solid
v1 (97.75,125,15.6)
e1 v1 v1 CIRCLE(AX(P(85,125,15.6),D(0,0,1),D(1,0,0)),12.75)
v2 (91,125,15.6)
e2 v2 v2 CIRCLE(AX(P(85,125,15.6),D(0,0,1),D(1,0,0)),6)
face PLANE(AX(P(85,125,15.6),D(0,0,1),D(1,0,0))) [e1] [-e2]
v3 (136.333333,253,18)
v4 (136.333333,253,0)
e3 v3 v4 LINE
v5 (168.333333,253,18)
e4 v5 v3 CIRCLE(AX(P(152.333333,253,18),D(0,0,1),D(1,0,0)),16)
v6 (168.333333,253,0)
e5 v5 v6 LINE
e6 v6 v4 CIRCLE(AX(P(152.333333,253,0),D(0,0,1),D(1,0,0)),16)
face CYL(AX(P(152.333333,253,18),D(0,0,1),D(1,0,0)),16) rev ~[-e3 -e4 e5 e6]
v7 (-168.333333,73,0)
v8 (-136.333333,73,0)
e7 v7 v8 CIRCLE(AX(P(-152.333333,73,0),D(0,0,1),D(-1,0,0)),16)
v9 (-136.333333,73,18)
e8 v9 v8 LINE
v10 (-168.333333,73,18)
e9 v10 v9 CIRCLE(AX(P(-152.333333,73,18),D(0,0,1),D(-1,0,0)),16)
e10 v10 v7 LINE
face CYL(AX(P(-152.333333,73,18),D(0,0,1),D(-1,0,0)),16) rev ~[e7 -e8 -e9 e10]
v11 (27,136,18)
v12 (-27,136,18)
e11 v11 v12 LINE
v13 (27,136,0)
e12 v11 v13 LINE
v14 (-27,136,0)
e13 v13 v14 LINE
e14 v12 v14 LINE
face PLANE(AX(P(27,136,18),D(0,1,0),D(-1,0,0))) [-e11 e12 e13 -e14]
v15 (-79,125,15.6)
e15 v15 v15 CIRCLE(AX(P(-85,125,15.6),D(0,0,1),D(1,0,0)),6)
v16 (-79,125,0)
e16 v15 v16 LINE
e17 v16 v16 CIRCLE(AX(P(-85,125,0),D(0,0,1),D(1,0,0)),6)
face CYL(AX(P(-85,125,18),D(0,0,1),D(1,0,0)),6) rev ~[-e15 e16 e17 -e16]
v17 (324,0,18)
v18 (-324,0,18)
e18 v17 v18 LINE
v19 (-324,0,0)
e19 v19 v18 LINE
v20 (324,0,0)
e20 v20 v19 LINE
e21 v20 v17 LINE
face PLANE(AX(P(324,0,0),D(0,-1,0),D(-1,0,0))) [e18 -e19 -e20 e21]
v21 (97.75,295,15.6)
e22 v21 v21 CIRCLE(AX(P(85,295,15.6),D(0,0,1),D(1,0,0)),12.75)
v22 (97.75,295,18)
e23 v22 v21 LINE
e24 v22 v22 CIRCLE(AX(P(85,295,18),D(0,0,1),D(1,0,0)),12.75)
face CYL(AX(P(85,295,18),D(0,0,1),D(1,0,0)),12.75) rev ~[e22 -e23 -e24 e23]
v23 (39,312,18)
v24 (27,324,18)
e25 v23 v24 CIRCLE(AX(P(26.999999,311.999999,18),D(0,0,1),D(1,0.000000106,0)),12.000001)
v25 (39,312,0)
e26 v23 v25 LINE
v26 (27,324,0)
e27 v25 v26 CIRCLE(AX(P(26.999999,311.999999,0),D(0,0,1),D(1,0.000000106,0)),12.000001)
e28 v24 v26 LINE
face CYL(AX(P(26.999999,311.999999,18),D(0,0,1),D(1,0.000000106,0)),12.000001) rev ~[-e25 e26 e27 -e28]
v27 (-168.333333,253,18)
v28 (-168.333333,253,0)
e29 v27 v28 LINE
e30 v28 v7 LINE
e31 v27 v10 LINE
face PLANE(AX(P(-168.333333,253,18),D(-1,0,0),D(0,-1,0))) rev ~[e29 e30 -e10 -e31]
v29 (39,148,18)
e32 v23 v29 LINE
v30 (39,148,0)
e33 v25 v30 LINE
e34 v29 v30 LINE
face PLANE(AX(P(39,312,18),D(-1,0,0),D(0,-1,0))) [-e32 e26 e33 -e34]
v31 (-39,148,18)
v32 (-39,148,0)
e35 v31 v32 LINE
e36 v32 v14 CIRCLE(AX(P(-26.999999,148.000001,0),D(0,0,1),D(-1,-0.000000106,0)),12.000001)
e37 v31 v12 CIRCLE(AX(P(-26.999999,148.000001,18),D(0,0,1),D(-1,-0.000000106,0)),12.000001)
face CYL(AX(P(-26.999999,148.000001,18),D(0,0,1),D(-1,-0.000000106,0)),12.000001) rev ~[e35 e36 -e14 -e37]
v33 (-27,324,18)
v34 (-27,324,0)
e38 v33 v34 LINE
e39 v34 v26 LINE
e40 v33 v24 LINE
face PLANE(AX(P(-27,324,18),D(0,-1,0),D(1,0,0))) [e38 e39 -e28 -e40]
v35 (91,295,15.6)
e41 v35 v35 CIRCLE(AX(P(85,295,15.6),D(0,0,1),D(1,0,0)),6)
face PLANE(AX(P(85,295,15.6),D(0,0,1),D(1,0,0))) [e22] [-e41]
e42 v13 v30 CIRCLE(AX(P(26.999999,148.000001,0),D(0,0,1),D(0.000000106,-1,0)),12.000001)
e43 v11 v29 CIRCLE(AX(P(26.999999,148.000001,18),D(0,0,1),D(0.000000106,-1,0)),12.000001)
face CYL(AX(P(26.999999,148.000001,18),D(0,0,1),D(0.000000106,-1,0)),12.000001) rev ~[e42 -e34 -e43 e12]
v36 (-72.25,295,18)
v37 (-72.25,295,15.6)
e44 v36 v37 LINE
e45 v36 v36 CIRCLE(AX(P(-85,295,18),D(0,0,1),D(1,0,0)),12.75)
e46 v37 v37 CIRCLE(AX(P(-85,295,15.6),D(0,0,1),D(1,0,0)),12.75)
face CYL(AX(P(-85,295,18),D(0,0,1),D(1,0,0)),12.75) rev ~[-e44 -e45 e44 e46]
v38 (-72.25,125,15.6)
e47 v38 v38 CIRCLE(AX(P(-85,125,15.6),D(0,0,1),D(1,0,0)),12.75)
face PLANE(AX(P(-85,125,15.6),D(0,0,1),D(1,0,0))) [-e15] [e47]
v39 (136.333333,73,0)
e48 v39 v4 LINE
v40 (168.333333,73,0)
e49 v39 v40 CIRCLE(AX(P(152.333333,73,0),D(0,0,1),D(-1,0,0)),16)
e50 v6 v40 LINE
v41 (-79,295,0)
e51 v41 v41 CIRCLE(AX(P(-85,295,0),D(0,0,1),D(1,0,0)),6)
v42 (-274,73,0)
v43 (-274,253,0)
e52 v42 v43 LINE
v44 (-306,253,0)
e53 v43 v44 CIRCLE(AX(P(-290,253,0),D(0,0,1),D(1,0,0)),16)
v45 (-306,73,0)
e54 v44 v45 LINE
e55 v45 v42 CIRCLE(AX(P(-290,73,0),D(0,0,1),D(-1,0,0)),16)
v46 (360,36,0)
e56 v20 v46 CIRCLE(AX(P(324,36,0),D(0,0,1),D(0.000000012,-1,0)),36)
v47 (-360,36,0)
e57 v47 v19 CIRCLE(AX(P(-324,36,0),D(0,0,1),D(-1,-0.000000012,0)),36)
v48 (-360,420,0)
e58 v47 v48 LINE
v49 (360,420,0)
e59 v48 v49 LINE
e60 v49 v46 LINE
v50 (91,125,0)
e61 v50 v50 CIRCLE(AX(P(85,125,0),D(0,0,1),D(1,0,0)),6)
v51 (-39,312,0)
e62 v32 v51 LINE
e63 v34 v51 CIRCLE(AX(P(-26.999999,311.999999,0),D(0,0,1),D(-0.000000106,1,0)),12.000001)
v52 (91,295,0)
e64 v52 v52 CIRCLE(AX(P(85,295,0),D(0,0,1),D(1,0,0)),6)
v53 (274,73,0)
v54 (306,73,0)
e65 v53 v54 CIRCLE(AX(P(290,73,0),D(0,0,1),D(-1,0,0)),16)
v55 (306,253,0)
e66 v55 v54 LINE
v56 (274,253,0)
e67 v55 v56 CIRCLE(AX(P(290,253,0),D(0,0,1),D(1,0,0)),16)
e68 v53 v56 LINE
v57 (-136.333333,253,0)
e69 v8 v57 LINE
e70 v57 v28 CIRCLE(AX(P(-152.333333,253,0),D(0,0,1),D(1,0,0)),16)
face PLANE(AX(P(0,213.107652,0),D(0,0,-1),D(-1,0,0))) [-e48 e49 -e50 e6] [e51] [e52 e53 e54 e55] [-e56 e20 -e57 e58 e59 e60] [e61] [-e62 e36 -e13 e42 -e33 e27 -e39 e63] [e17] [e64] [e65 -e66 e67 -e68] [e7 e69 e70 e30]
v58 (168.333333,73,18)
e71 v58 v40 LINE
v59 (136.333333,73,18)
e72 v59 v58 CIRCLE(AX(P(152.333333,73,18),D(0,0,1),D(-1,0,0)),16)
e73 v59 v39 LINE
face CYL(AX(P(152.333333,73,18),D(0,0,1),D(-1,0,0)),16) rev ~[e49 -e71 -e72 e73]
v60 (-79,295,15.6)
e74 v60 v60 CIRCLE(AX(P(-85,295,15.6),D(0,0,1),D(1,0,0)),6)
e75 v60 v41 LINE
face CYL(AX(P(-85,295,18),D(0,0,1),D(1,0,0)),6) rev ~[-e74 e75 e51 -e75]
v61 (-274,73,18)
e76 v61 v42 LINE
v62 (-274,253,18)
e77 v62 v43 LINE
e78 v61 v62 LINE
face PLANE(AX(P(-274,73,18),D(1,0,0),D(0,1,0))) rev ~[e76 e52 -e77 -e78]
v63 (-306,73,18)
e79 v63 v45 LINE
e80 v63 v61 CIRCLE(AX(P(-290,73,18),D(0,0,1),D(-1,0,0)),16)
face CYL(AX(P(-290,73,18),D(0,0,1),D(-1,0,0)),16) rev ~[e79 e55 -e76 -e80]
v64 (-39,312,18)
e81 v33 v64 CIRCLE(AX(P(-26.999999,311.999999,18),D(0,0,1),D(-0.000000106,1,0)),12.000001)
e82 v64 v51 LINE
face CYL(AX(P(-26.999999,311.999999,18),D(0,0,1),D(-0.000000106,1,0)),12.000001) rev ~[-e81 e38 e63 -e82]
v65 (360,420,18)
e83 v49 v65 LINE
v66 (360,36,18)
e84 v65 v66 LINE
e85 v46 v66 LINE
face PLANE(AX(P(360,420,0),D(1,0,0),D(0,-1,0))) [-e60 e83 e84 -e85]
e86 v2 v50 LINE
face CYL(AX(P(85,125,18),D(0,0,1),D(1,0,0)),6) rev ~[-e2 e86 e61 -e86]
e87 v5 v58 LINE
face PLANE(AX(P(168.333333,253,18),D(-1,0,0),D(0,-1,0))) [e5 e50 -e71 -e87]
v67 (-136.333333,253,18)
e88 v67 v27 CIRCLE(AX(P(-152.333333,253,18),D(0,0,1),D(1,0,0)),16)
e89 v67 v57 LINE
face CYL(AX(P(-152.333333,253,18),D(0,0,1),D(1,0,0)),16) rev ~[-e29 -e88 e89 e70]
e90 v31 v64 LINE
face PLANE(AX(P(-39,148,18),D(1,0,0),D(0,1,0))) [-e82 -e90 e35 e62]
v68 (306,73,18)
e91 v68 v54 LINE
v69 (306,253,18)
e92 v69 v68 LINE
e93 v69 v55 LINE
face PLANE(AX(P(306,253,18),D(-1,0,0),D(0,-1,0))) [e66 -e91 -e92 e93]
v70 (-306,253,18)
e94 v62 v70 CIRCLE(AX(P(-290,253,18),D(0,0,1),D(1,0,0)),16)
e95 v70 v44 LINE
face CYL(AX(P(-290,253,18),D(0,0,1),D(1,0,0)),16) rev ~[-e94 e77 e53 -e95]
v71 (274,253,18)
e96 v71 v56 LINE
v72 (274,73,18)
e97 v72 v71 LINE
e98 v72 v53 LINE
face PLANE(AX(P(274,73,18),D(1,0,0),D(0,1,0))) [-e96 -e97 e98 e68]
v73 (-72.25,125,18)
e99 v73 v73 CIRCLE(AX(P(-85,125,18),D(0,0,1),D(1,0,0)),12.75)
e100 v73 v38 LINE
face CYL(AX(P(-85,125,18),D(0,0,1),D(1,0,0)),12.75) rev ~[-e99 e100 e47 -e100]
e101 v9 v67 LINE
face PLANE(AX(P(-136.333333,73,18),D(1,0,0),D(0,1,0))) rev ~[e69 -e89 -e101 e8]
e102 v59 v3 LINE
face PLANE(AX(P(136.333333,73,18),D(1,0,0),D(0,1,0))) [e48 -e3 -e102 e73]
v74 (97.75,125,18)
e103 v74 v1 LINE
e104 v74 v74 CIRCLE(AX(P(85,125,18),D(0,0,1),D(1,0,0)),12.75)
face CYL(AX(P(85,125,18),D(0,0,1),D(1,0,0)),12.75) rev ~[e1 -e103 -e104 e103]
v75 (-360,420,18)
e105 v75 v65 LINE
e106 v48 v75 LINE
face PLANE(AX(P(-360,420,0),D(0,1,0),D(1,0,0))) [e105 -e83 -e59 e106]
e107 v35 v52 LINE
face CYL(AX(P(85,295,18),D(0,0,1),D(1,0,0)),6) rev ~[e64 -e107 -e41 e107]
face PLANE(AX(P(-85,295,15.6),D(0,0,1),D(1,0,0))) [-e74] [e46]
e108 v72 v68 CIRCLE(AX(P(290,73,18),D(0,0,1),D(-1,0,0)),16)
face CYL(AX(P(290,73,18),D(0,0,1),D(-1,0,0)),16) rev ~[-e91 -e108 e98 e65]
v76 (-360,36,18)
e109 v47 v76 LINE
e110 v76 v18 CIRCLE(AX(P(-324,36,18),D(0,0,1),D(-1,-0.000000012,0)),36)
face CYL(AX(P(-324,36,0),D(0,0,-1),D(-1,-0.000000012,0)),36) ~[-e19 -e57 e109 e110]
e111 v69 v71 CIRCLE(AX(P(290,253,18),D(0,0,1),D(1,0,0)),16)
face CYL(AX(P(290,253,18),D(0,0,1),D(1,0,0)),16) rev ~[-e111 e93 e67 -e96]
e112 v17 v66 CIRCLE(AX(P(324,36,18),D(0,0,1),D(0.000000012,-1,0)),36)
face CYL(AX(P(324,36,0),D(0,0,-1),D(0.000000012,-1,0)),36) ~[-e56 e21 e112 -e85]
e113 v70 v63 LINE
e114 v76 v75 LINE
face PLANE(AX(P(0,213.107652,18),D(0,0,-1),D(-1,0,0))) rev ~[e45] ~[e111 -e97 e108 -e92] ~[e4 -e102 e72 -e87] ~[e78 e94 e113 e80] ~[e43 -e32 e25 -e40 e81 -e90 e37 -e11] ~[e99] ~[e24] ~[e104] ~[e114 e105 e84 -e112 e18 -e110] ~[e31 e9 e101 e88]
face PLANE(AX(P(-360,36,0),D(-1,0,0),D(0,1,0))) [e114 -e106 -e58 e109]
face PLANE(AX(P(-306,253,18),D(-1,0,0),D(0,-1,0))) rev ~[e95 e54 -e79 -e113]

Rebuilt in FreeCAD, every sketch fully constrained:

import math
import FreeCAD as App
import Part
import Sketcher

doc = App.newDocument("Part")
body = doc.addObject("PartDesign::Body", "Body")

sketch1 = body.newObject("Sketcher::SketchObject", "Sketch")
sketch1.AttachmentSupport = (doc.getObject("XY_Plane"), [""])
sketch1.MapMode = "FlatFace"
sketch1.addGeometry([
    Part.LineSegment(App.Vector(360, 420, 0), App.Vector(-360, 420, 0)),
    Part.LineSegment(App.Vector(-360, 420, 0), App.Vector(-360, 36, 0)),
    Part.ArcOfCircle(Part.Circle(App.Vector(-324, 36, 0), App.Vector(0, 0, 1), 36), math.radians(-180), math.radians(-90)),
    Part.LineSegment(App.Vector(-324, 0, 0), App.Vector(324, 0, 0)),
    Part.ArcOfCircle(Part.Circle(App.Vector(324, 36, 0), App.Vector(0, 0, 1), 36), math.radians(-90), math.radians(0)),
    Part.LineSegment(App.Vector(360, 36, 0), App.Vector(360, 420, 0)),
], False)
sketch1.addConstraint([
    Sketcher.Constraint("Coincident", 0, 2, 1, 1),
    Sketcher.Constraint("Tangent", 1, 2, 2, 1),
    Sketcher.Constraint("Tangent", 2, 2, 3, 1),
    Sketcher.Constraint("Tangent", 3, 2, 4, 1),
    Sketcher.Constraint("Tangent", 4, 2, 5, 1),
    Sketcher.Constraint("Coincident", 5, 2, 0, 1),
    Sketcher.Constraint("Horizontal", 0),
    Sketcher.Constraint("Vertical", 1),
    Sketcher.Constraint("Horizontal", 3),
    Sketcher.Constraint("Vertical", 5),
    Sketcher.Constraint("Equal", 2, 4),
    Sketcher.Constraint("Symmetric", 2, 2, 3, 2, -1, 1),
    Sketcher.Constraint("Radius", 2, 36.0),
    Sketcher.Constraint("DistanceX", 0, 2, 0, 1, 720.0),
    Sketcher.Constraint("DistanceY", 1, 2, 1, 1, 384.0),
])
pad1 = body.newObject("PartDesign::Pad", "Pad")
pad1.Profile = sketch1
pad1.Length = 18

sketch2 = body.newObject("Sketcher::SketchObject", "Sketch001")
sketch2.AttachmentSupport = (doc.getObject("XY_Plane"), [""])
sketch2.MapMode = "FlatFace"
sketch2.AttachmentOffset = App.Placement(App.Vector(0, 0, 18), App.Rotation())
sketch2.addGeometry([
    Part.Circle(App.Vector(-85, 125, 0), App.Vector(0, 0, 1), 6),
    Part.Circle(App.Vector(-85, 295, 0), App.Vector(0, 0, 1), 6),
    Part.Circle(App.Vector(85, 295, 0), App.Vector(0, 0, 1), 6),
    Part.Circle(App.Vector(85, 125, 0), App.Vector(0, 0, 1), 6),
    Part.ArcOfCircle(Part.Circle(App.Vector(-290, 253, 0), App.Vector(0, 0, 1), 16), math.radians(0), math.radians(180)),
    Part.LineSegment(App.Vector(-306, 253, 0), App.Vector(-306, 73, 0)),
    Part.ArcOfCircle(Part.Circle(App.Vector(-290, 73, 0), App.Vector(0, 0, 1), 16), math.radians(180), math.radians(360)),
    Part.LineSegment(App.Vector(-274, 73, 0), App.Vector(-274, 253, 0)),
    Part.ArcOfCircle(Part.Circle(App.Vector(-152, 253, 0), App.Vector(0, 0, 1), 16), math.radians(0), math.radians(180)),
    Part.LineSegment(App.Vector(-168, 253, 0), App.Vector(-168, 73, 0)),
    Part.ArcOfCircle(Part.Circle(App.Vector(-152, 73, 0), App.Vector(0, 0, 1), 16), math.radians(180), math.radians(360)),
    Part.LineSegment(App.Vector(-136, 73, 0), App.Vector(-136, 253, 0)),
    Part.ArcOfCircle(Part.Circle(App.Vector(290, 253, 0), App.Vector(0, 0, 1), 16), math.radians(0), math.radians(180)),
    Part.LineSegment(App.Vector(274, 253, 0), App.Vector(274, 73, 0)),
    Part.ArcOfCircle(Part.Circle(App.Vector(290, 73, 0), App.Vector(0, 0, 1), 16), math.radians(180), math.radians(360)),
    Part.LineSegment(App.Vector(306, 73, 0), App.Vector(306, 253, 0)),
    Part.ArcOfCircle(Part.Circle(App.Vector(152, 253, 0), App.Vector(0, 0, 1), 16), math.radians(0), math.radians(180)),
    Part.LineSegment(App.Vector(136, 253, 0), App.Vector(136, 73, 0)),
    Part.ArcOfCircle(Part.Circle(App.Vector(152, 73, 0), App.Vector(0, 0, 1), 16), math.radians(180), math.radians(360)),
    Part.LineSegment(App.Vector(168, 73, 0), App.Vector(168, 253, 0)),
    Part.LineSegment(App.Vector(27, 324, 0), App.Vector(-27, 324, 0)),
    Part.ArcOfCircle(Part.Circle(App.Vector(-27, 312, 0), App.Vector(0, 0, 1), 12), math.radians(90), math.radians(180)),
    Part.LineSegment(App.Vector(-39, 312, 0), App.Vector(-39, 148, 0)),
    Part.ArcOfCircle(Part.Circle(App.Vector(-27, 148, 0), App.Vector(0, 0, 1), 12), math.radians(-180), math.radians(-90)),
    Part.LineSegment(App.Vector(-27, 136, 0), App.Vector(27, 136, 0)),
    Part.ArcOfCircle(Part.Circle(App.Vector(27, 148, 0), App.Vector(0, 0, 1), 12), math.radians(-90), math.radians(0)),
    Part.LineSegment(App.Vector(39, 148, 0), App.Vector(39, 312, 0)),
    Part.ArcOfCircle(Part.Circle(App.Vector(27, 312, 0), App.Vector(0, 0, 1), 12), math.radians(0), math.radians(90)),
], False)
sketch2.addConstraint([
    Sketcher.Constraint("Tangent", 4, 2, 5, 1),
    Sketcher.Constraint("Tangent", 5, 2, 6, 1),
    Sketcher.Constraint("Tangent", 6, 2, 7, 1),
    Sketcher.Constraint("Tangent", 7, 2, 4, 1),
    Sketcher.Constraint("Tangent", 8, 2, 9, 1),
    Sketcher.Constraint("Tangent", 9, 2, 10, 1),
    Sketcher.Constraint("Tangent", 10, 2, 11, 1),
    Sketcher.Constraint("Tangent", 11, 2, 8, 1),
    Sketcher.Constraint("Tangent", 12, 2, 13, 1),
    Sketcher.Constraint("Tangent", 13, 2, 14, 1),
    Sketcher.Constraint("Tangent", 14, 2, 15, 1),
    Sketcher.Constraint("Tangent", 15, 2, 12, 1),
    Sketcher.Constraint("Tangent", 16, 2, 17, 1),
    Sketcher.Constraint("Tangent", 17, 2, 18, 1),
    Sketcher.Constraint("Tangent", 18, 2, 19, 1),
    Sketcher.Constraint("Tangent", 19, 2, 16, 1),
    Sketcher.Constraint("Tangent", 20, 2, 21, 1),
    Sketcher.Constraint("Tangent", 21, 2, 22, 1),
    Sketcher.Constraint("Tangent", 22, 2, 23, 1),
    Sketcher.Constraint("Tangent", 23, 2, 24, 1),
    Sketcher.Constraint("Tangent", 24, 2, 25, 1),
    Sketcher.Constraint("Tangent", 25, 2, 26, 1),
    Sketcher.Constraint("Tangent", 26, 2, 27, 1),
    Sketcher.Constraint("Tangent", 27, 2, 20, 1),
    Sketcher.Constraint("Vertical", 5),
    Sketcher.Constraint("Vertical", 7),
    Sketcher.Constraint("Vertical", 9),
    Sketcher.Constraint("Vertical", 11),
    Sketcher.Constraint("Vertical", 13),
    Sketcher.Constraint("Vertical", 15),
    Sketcher.Constraint("Vertical", 17),
    Sketcher.Constraint("Vertical", 19),
    Sketcher.Constraint("Horizontal", 20),
    Sketcher.Constraint("Vertical", 22),
    Sketcher.Constraint("Horizontal", 24),
    Sketcher.Constraint("Vertical", 26),
    Sketcher.Constraint("Equal", 0, 1),
    Sketcher.Constraint("Equal", 1, 2),
    Sketcher.Constraint("Equal", 2, 3),
    Sketcher.Constraint("Equal", 6, 8),
    Sketcher.Constraint("Equal", 10, 12),
    Sketcher.Constraint("Equal", 14, 16),
    Sketcher.Constraint("Equal", 21, 23),
    Sketcher.Constraint("Equal", 23, 25),
    Sketcher.Constraint("Equal", 25, 27),
    Sketcher.Constraint("Symmetric", 1, 3, 2, 3, -2),
    Sketcher.Constraint("Symmetric", 0, 3, 3, 3, -2),
    Sketcher.Constraint("Symmetric", 4, 3, 12, 3, -2),
    Sketcher.Constraint("Symmetric", 8, 3, 16, 3, -2),
    Sketcher.Constraint("Horizontal", 4, 3, 8, 3),
    Sketcher.Constraint("Horizontal", 6, 3, 10, 3),
    Sketcher.Constraint("Horizontal", 10, 3, 14, 3),
    Sketcher.Constraint("Horizontal", 14, 3, 18, 3),
    Sketcher.Constraint("Vertical", 0, 3, 1, 3),
    Sketcher.Constraint("Diameter", 0, 12.0),
    Sketcher.Constraint("Radius", 4, 16.0),
    Sketcher.Constraint("Radius", 21, 12.000001),
    Sketcher.Constraint("DistanceX", 20, 2, 20, 1, 54.0),
    Sketcher.Constraint("DistanceY", 5, 2, 5, 1, 180.0),
    Sketcher.Constraint("DistanceY", 22, 2, 22, 1, 164.0),
    Sketcher.Constraint("DistanceX", 0, 3, -1, 1, 85.0),
    Sketcher.Constraint("DistanceY", -1, 1, 0, 3, 125.0),
    Sketcher.Constraint("DistanceY", -1, 1, 1, 3, 295.0),
    Sketcher.Constraint("DistanceX", 4, 3, -1, 1, 290.0),
    Sketcher.Constraint("DistanceY", -1, 1, 4, 3, 253.0),
    Sketcher.Constraint("DistanceX", 21, 3, -1, 1, 26.999999),
    Sketcher.Constraint("DistanceY", -1, 1, 21, 3, 311.999999),
    Sketcher.Constraint("DistanceX", 21, 3, 16, 3, 179.333332),
])
pocket1 = body.newObject("PartDesign::Pocket", "Pocket")
pocket1.Profile = sketch2
pocket1.Length = 18

sketch3 = body.newObject("Sketcher::SketchObject", "Sketch002")
sketch3.AttachmentSupport = (doc.getObject("XY_Plane"), [""])
sketch3.MapMode = "FlatFace"
sketch3.AttachmentOffset = App.Placement(App.Vector(0, 0, 18), App.Rotation())
sketch3.addGeometry([
    Part.Circle(App.Vector(-85, 295, 0), App.Vector(0, 0, 1), 13),
    Part.Circle(App.Vector(85, 295, 0), App.Vector(0, 0, 1), 13),
    Part.Circle(App.Vector(-85, 125, 0), App.Vector(0, 0, 1), 13),
    Part.Circle(App.Vector(85, 125, 0), App.Vector(0, 0, 1), 13),
], False)
sketch3.addConstraint([
    Sketcher.Constraint("Equal", 0, 1),
    Sketcher.Constraint("Equal", 1, 2),
    Sketcher.Constraint("Equal", 2, 3),
    Sketcher.Constraint("Symmetric", 0, 3, 1, 3, -2),
    Sketcher.Constraint("Symmetric", 2, 3, 3, 3, -2),
    Sketcher.Constraint("Vertical", 0, 3, 2, 3),
    Sketcher.Constraint("Diameter", 0, 25.5),
    Sketcher.Constraint("DistanceX", 0, 3, -1, 1, 85.0),
    Sketcher.Constraint("DistanceY", -1, 1, 0, 3, 295.0),
    Sketcher.Constraint("DistanceY", -1, 1, 2, 3, 125.0),
])
pocket2 = body.newObject("PartDesign::Pocket", "Pocket001")
pocket2.Profile = sketch3
pocket2.Length = 2.4

doc.recompute()
